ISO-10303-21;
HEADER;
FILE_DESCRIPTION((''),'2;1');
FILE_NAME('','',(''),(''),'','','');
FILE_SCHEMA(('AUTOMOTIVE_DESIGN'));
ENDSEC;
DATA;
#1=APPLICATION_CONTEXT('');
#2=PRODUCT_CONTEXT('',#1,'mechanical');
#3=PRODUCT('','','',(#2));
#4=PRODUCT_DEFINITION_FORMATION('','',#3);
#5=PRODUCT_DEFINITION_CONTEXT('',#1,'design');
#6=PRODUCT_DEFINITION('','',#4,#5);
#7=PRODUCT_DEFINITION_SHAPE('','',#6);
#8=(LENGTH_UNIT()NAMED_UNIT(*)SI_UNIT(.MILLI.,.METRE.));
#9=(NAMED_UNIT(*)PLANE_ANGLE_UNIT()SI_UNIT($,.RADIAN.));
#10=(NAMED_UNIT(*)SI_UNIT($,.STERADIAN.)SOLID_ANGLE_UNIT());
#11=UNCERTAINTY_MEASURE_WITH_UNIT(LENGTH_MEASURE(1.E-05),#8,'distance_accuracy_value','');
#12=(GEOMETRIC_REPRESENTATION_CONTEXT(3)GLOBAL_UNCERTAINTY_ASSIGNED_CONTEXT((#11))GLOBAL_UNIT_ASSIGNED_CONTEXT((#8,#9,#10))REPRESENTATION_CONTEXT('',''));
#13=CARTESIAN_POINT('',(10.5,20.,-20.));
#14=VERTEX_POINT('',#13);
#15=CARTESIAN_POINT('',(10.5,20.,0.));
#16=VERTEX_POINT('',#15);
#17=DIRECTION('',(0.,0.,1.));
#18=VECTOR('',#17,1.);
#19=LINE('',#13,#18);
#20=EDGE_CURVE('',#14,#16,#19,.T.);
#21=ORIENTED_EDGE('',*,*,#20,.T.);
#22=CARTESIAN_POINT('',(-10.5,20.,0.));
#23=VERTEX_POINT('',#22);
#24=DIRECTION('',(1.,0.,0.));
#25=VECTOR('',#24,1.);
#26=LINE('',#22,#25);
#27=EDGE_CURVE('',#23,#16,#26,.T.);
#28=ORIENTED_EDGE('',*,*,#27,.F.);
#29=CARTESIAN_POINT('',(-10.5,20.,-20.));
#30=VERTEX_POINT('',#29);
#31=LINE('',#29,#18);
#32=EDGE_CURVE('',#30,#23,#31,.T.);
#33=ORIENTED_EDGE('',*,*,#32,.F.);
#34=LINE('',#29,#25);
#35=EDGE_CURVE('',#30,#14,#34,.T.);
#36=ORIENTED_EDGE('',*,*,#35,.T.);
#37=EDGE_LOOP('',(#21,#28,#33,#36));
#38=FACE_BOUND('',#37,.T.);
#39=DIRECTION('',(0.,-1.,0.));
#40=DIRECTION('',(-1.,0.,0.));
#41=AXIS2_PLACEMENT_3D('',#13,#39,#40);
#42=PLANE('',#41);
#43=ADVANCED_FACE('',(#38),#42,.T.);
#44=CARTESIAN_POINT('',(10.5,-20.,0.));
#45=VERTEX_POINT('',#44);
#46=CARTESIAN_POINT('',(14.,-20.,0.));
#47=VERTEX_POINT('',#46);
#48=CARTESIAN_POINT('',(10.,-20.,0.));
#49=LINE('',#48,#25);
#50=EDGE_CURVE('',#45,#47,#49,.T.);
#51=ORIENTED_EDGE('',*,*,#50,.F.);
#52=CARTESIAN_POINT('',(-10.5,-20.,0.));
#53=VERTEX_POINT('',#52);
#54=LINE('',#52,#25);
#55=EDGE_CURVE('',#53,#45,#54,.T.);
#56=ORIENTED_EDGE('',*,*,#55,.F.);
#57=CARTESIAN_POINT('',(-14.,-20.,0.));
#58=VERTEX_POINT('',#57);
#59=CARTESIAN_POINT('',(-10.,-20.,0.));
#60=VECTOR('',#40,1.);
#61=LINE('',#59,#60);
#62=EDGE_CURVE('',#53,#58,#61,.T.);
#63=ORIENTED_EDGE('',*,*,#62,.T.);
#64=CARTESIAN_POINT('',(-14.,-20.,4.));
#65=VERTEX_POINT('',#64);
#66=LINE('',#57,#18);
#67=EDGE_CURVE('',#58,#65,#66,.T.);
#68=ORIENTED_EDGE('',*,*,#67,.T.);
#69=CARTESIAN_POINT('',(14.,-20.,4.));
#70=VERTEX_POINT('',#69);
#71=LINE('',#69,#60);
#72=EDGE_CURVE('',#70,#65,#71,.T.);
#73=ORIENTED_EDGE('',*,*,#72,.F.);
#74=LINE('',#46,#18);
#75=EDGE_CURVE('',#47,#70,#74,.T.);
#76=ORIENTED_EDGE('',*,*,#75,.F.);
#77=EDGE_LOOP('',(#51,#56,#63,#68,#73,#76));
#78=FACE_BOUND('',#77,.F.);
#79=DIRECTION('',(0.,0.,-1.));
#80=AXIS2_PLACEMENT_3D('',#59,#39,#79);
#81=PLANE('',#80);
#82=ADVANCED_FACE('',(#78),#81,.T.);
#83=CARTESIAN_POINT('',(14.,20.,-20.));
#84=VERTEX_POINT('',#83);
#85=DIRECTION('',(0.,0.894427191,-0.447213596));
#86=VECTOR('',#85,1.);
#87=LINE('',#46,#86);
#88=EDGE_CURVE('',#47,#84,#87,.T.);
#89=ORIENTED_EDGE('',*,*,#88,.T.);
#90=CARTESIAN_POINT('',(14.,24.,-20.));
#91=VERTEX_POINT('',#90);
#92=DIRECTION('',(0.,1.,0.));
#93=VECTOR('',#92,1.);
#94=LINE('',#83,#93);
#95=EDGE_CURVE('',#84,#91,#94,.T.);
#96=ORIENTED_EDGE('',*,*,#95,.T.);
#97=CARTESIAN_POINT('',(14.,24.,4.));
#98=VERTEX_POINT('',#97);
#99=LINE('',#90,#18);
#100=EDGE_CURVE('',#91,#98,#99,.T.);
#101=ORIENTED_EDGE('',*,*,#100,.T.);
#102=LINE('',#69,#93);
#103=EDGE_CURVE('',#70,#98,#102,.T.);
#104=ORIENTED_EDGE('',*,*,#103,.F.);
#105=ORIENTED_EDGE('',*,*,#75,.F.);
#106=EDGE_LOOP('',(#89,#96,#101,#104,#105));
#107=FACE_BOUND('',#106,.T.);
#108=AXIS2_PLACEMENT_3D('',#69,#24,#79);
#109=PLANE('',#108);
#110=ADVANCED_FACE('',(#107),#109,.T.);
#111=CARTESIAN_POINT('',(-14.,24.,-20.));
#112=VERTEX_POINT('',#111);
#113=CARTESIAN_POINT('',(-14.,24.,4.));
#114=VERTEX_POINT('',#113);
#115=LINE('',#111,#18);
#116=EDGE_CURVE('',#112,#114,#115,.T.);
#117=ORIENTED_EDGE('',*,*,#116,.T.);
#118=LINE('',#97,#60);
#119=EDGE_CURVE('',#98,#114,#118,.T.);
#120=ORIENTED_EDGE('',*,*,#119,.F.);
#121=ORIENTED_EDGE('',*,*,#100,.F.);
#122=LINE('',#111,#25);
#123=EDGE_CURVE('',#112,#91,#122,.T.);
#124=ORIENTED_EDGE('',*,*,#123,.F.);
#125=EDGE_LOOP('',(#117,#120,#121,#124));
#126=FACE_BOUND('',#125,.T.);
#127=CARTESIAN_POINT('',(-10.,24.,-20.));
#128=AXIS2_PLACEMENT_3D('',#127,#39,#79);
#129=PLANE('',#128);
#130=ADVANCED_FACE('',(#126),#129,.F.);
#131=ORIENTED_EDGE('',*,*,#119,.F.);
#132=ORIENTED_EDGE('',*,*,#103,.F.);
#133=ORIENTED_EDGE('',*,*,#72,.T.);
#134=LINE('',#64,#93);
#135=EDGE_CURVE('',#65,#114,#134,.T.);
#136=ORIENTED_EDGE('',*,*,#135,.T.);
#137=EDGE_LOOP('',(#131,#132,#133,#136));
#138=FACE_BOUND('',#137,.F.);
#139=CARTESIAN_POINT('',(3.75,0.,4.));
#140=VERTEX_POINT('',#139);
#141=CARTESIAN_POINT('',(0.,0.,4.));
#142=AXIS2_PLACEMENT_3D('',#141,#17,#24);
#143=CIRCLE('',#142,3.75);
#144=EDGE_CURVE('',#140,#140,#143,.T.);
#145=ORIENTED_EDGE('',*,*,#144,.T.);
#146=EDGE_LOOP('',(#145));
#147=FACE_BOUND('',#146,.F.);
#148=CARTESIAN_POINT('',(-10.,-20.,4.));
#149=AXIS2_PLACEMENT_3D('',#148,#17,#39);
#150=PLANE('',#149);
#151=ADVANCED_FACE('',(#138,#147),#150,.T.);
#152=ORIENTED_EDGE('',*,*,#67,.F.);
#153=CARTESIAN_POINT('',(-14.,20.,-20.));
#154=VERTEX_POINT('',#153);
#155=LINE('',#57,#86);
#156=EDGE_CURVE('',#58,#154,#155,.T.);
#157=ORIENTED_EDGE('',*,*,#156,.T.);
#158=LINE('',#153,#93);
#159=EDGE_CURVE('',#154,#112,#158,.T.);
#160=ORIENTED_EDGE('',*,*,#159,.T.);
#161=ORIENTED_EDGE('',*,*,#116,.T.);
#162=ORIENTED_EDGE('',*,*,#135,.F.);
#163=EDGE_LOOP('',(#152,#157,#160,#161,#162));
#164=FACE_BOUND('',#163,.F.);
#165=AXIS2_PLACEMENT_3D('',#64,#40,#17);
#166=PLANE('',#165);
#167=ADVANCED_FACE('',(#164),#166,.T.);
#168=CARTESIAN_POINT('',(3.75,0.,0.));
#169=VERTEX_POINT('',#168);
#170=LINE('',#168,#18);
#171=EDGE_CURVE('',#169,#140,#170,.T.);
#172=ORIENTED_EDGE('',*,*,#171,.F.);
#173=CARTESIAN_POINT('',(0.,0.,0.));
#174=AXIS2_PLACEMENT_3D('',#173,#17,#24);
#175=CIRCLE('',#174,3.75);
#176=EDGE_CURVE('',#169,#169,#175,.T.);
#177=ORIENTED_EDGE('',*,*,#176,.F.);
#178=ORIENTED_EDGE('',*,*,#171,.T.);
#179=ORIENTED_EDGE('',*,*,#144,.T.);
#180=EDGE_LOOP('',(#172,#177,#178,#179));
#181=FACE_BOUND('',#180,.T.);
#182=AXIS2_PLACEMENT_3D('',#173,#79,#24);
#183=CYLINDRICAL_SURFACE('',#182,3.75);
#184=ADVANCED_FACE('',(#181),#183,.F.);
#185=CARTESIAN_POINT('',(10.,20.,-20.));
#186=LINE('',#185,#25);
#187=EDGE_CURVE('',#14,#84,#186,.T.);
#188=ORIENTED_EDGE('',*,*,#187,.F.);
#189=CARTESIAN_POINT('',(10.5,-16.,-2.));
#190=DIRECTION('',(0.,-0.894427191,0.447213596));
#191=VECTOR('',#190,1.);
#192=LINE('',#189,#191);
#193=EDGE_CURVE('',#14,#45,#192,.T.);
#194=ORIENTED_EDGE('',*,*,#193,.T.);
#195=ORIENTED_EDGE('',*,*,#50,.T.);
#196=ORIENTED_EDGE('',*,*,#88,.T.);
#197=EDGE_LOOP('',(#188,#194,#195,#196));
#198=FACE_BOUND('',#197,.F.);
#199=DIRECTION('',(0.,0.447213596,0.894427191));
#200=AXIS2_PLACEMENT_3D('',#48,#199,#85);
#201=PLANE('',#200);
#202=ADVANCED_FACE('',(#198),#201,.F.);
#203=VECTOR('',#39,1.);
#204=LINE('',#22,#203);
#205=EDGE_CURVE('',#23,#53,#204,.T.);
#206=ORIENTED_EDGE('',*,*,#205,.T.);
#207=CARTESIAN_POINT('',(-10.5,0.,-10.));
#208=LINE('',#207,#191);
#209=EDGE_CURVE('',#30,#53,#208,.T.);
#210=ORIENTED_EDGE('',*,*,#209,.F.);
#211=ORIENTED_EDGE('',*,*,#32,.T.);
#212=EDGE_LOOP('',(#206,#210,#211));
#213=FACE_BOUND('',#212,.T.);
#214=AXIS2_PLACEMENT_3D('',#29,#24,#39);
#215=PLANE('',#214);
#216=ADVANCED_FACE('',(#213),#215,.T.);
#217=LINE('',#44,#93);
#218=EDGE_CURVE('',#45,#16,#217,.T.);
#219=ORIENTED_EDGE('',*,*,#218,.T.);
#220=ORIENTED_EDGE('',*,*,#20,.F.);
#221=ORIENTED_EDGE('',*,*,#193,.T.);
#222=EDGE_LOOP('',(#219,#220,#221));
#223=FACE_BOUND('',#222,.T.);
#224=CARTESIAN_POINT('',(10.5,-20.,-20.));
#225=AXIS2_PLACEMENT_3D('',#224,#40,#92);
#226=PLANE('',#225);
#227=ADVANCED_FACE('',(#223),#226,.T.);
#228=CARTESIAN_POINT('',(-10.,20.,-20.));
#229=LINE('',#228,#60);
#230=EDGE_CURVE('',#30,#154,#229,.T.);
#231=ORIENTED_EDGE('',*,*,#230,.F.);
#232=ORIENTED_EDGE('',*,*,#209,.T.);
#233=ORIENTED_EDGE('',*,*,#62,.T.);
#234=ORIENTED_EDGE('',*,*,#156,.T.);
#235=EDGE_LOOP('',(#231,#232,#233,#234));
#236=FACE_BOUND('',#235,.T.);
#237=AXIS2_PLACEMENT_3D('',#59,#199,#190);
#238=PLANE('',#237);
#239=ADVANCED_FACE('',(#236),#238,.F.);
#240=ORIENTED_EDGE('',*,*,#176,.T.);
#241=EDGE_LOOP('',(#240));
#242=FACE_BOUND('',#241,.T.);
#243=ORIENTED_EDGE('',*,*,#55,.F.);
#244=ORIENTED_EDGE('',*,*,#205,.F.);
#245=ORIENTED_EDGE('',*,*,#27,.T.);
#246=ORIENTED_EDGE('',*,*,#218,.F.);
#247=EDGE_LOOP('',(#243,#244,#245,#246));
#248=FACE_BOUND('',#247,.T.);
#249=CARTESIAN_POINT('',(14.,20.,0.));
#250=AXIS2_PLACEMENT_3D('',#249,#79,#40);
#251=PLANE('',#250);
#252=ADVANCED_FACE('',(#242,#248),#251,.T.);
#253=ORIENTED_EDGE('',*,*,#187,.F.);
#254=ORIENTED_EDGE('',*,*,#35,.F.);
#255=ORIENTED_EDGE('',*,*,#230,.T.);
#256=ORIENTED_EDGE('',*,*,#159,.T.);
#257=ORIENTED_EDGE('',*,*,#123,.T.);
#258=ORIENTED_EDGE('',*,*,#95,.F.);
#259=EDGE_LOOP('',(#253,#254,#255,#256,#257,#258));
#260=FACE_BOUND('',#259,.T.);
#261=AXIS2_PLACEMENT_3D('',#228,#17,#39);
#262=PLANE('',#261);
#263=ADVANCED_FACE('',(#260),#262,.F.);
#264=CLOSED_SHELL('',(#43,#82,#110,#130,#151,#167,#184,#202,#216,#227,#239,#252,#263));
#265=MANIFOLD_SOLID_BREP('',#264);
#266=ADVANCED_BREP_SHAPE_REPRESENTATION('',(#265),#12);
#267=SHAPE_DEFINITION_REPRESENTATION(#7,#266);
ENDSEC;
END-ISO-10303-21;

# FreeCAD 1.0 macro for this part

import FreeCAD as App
import Part
import Sketcher

V = App.Vector


def add_polygon(sketch, points):
    """Adds a closed chain of lines whose ends are joined by coincident constraints."""
    first, n = sketch.GeometryCount, len(points)
    for a, b in zip(points, points[1:] + points[:1]):
        sketch.addGeometry(Part.LineSegment(App.Vector(*a, 0), App.Vector(*b, 0)), False)
    for i in range(n):
        sketch.addConstraint(Sketcher.Constraint("Coincident", first + i, 2, first + (i + 1) % n, 1))

doc = App.newDocument("Part")
body = doc.addObject("PartDesign::Body", "Body")

sketch1 = doc.addObject("Sketcher::SketchObject", "Sketch")
body.addObject(sketch1)
sketch1.AttachmentSupport = (doc.XY_Plane, [""])
sketch1.MapMode = "FlatFace"
add_polygon(sketch1, [(10, 20), (-10, 20), (-10, -20), (10, -20)])
sketch1.addGeometry(Part.Circle(V(0, 0, 0), V(0, 0, 1), 3.8), False)
sketch1.addConstraint(Sketcher.Constraint("Horizontal", 0))
sketch1.addConstraint(Sketcher.Constraint("Vertical", 1))
sketch1.addConstraint(Sketcher.Constraint("Horizontal", 2))
sketch1.addConstraint(Sketcher.Constraint("Vertical", 3))
sketch1.addConstraint(Sketcher.Constraint("Coincident", 4, 3, -1, 1))
sketch1.addConstraint(Sketcher.Constraint("Symmetric", 0, 2, 2, 2, -1, 1))
sketch1.addConstraint(Sketcher.Constraint("Diameter", 4, 7.5))
sketch1.addConstraint(Sketcher.Constraint("DistanceX", 0, 2, 0, 1, 20.0))
sketch1.addConstraint(Sketcher.Constraint("DistanceY", 1, 2, 1, 1, 40.0))
pad1 = doc.addObject("PartDesign::Pad", "Pad")
body.addObject(pad1)
pad1.Profile = sketch1
pad1.Length = 4

sketch2 = doc.addObject("Sketcher::SketchObject", "Sketch001")
body.addObject(sketch2)
sketch2.AttachmentSupport = (doc.XZ_Plane, [""])
sketch2.MapMode = "FlatFace"
sketch2.AttachmentOffset = App.Placement(V(0, 0, -20), App.Rotation())
add_polygon(sketch2, [(-10, 4), (10, 4), (10, -20), (-10, -20)])
sketch2.addConstraint(Sketcher.Constraint("Horizontal", 0))
sketch2.addConstraint(Sketcher.Constraint("Vertical", 1))
sketch2.addConstraint(Sketcher.Constraint("Horizontal", 2))
sketch2.addConstraint(Sketcher.Constraint("Vertical", 3))
sketch2.addConstraint(Sketcher.Constraint("DistanceY", 1, 2, 1, 1, 24.0))
sketch2.addConstraint(Sketcher.Constraint("DistanceX", 0, 1, 0, 2, 20.0))
sketch2.addConstraint(Sketcher.Constraint("DistanceX", -1, 1, 0, 2, 10.0))
sketch2.addConstraint(Sketcher.Constraint("DistanceY", -1, 1, 0, 2, 4.0))
pad2 = doc.addObject("PartDesign::Pad", "Pad001")
body.addObject(pad2)
pad2.Profile = sketch2
pad2.Length = 4
pad2.Reversed = True

sketch3 = doc.addObject("Sketcher::SketchObject", "Sketch002")
body.addObject(sketch3)
sketch3.AttachmentSupport = (doc.YZ_Plane, [""])
sketch3.MapMode = "FlatFace"
sketch3.AttachmentOffset = App.Placement(V(0, 0, 10), App.Rotation())
add_polygon(sketch3, [(-20, 4), (-20, 0), (20, -20), (24, -20), (24, 4)])
sketch3.addConstraint(Sketcher.Constraint("Vertical", 0))
sketch3.addConstraint(Sketcher.Constraint("Horizontal", 2))
sketch3.addConstraint(Sketcher.Constraint("Vertical", 3))
sketch3.addConstraint(Sketcher.Constraint("Horizontal", 4))
sketch3.addConstraint(Sketcher.Constraint("PointOnObject", 0, 2, -1))
sketch3.addConstraint(Sketcher.Constraint("Equal", 2, 0))
sketch3.addConstraint(Sketcher.Constraint("DistanceX", 2, 1, 2, 2, 4.0))
sketch3.addConstraint(Sketcher.Constraint("DistanceX", 4, 2, 4, 1, 44.0))
sketch3.addConstraint(Sketcher.Constraint("DistanceY", 3, 1, 3, 2, 24.0))
sketch3.addConstraint(Sketcher.Constraint("DistanceX", 0, 2, -1, 1, 20.0))
pad3 = doc.addObject("PartDesign::Pad", "Pad002")
body.addObject(pad3)
pad3.Profile = sketch3
pad3.Length = 4
doc.recompute()

mirrored = doc.addObject("PartDesign::Mirrored", "Mirrored")
body.addObject(mirrored)
mirrored.Originals = [pad3]
mirrored.MirrorPlane = (doc.YZ_Plane, [""])
body.Tip = mirrored

sketch4 = doc.addObject("Sketcher::SketchObject", "Sketch003")
body.addObject(sketch4)
sketch4.AttachmentSupport = (doc.XY_Plane, [""])
sketch4.MapMode = "FlatFace"
sketch4.AttachmentOffset = App.Placement(V(0, 0, -20), App.Rotation())
add_polygon(sketch4, [(-10, 20), (10, 20), (10, -20), (-10, -20)])
sketch4.addConstraint(Sketcher.Constraint("Horizontal", 0))
sketch4.addConstraint(Sketcher.Constraint("Vertical", 1))
sketch4.addConstraint(Sketcher.Constraint("Horizontal", 2))
sketch4.addConstraint(Sketcher.Constraint("Vertical", 3))
sketch4.addConstraint(Sketcher.Constraint("Symmetric", 0, 2, 2, 2, -1, 1))
sketch4.addConstraint(Sketcher.Constraint("DistanceX", 0, 1, 0, 2, 21.0))
sketch4.addConstraint(Sketcher.Constraint("DistanceY", 1, 2, 1, 1, 40.0))
pocket1 = doc.addObject("PartDesign::Pocket", "Pocket")
body.addObject(pocket1)
pocket1.Profile = sketch4
pocket1.Length = 20
pocket1.Reversed = True

doc.recompute()
